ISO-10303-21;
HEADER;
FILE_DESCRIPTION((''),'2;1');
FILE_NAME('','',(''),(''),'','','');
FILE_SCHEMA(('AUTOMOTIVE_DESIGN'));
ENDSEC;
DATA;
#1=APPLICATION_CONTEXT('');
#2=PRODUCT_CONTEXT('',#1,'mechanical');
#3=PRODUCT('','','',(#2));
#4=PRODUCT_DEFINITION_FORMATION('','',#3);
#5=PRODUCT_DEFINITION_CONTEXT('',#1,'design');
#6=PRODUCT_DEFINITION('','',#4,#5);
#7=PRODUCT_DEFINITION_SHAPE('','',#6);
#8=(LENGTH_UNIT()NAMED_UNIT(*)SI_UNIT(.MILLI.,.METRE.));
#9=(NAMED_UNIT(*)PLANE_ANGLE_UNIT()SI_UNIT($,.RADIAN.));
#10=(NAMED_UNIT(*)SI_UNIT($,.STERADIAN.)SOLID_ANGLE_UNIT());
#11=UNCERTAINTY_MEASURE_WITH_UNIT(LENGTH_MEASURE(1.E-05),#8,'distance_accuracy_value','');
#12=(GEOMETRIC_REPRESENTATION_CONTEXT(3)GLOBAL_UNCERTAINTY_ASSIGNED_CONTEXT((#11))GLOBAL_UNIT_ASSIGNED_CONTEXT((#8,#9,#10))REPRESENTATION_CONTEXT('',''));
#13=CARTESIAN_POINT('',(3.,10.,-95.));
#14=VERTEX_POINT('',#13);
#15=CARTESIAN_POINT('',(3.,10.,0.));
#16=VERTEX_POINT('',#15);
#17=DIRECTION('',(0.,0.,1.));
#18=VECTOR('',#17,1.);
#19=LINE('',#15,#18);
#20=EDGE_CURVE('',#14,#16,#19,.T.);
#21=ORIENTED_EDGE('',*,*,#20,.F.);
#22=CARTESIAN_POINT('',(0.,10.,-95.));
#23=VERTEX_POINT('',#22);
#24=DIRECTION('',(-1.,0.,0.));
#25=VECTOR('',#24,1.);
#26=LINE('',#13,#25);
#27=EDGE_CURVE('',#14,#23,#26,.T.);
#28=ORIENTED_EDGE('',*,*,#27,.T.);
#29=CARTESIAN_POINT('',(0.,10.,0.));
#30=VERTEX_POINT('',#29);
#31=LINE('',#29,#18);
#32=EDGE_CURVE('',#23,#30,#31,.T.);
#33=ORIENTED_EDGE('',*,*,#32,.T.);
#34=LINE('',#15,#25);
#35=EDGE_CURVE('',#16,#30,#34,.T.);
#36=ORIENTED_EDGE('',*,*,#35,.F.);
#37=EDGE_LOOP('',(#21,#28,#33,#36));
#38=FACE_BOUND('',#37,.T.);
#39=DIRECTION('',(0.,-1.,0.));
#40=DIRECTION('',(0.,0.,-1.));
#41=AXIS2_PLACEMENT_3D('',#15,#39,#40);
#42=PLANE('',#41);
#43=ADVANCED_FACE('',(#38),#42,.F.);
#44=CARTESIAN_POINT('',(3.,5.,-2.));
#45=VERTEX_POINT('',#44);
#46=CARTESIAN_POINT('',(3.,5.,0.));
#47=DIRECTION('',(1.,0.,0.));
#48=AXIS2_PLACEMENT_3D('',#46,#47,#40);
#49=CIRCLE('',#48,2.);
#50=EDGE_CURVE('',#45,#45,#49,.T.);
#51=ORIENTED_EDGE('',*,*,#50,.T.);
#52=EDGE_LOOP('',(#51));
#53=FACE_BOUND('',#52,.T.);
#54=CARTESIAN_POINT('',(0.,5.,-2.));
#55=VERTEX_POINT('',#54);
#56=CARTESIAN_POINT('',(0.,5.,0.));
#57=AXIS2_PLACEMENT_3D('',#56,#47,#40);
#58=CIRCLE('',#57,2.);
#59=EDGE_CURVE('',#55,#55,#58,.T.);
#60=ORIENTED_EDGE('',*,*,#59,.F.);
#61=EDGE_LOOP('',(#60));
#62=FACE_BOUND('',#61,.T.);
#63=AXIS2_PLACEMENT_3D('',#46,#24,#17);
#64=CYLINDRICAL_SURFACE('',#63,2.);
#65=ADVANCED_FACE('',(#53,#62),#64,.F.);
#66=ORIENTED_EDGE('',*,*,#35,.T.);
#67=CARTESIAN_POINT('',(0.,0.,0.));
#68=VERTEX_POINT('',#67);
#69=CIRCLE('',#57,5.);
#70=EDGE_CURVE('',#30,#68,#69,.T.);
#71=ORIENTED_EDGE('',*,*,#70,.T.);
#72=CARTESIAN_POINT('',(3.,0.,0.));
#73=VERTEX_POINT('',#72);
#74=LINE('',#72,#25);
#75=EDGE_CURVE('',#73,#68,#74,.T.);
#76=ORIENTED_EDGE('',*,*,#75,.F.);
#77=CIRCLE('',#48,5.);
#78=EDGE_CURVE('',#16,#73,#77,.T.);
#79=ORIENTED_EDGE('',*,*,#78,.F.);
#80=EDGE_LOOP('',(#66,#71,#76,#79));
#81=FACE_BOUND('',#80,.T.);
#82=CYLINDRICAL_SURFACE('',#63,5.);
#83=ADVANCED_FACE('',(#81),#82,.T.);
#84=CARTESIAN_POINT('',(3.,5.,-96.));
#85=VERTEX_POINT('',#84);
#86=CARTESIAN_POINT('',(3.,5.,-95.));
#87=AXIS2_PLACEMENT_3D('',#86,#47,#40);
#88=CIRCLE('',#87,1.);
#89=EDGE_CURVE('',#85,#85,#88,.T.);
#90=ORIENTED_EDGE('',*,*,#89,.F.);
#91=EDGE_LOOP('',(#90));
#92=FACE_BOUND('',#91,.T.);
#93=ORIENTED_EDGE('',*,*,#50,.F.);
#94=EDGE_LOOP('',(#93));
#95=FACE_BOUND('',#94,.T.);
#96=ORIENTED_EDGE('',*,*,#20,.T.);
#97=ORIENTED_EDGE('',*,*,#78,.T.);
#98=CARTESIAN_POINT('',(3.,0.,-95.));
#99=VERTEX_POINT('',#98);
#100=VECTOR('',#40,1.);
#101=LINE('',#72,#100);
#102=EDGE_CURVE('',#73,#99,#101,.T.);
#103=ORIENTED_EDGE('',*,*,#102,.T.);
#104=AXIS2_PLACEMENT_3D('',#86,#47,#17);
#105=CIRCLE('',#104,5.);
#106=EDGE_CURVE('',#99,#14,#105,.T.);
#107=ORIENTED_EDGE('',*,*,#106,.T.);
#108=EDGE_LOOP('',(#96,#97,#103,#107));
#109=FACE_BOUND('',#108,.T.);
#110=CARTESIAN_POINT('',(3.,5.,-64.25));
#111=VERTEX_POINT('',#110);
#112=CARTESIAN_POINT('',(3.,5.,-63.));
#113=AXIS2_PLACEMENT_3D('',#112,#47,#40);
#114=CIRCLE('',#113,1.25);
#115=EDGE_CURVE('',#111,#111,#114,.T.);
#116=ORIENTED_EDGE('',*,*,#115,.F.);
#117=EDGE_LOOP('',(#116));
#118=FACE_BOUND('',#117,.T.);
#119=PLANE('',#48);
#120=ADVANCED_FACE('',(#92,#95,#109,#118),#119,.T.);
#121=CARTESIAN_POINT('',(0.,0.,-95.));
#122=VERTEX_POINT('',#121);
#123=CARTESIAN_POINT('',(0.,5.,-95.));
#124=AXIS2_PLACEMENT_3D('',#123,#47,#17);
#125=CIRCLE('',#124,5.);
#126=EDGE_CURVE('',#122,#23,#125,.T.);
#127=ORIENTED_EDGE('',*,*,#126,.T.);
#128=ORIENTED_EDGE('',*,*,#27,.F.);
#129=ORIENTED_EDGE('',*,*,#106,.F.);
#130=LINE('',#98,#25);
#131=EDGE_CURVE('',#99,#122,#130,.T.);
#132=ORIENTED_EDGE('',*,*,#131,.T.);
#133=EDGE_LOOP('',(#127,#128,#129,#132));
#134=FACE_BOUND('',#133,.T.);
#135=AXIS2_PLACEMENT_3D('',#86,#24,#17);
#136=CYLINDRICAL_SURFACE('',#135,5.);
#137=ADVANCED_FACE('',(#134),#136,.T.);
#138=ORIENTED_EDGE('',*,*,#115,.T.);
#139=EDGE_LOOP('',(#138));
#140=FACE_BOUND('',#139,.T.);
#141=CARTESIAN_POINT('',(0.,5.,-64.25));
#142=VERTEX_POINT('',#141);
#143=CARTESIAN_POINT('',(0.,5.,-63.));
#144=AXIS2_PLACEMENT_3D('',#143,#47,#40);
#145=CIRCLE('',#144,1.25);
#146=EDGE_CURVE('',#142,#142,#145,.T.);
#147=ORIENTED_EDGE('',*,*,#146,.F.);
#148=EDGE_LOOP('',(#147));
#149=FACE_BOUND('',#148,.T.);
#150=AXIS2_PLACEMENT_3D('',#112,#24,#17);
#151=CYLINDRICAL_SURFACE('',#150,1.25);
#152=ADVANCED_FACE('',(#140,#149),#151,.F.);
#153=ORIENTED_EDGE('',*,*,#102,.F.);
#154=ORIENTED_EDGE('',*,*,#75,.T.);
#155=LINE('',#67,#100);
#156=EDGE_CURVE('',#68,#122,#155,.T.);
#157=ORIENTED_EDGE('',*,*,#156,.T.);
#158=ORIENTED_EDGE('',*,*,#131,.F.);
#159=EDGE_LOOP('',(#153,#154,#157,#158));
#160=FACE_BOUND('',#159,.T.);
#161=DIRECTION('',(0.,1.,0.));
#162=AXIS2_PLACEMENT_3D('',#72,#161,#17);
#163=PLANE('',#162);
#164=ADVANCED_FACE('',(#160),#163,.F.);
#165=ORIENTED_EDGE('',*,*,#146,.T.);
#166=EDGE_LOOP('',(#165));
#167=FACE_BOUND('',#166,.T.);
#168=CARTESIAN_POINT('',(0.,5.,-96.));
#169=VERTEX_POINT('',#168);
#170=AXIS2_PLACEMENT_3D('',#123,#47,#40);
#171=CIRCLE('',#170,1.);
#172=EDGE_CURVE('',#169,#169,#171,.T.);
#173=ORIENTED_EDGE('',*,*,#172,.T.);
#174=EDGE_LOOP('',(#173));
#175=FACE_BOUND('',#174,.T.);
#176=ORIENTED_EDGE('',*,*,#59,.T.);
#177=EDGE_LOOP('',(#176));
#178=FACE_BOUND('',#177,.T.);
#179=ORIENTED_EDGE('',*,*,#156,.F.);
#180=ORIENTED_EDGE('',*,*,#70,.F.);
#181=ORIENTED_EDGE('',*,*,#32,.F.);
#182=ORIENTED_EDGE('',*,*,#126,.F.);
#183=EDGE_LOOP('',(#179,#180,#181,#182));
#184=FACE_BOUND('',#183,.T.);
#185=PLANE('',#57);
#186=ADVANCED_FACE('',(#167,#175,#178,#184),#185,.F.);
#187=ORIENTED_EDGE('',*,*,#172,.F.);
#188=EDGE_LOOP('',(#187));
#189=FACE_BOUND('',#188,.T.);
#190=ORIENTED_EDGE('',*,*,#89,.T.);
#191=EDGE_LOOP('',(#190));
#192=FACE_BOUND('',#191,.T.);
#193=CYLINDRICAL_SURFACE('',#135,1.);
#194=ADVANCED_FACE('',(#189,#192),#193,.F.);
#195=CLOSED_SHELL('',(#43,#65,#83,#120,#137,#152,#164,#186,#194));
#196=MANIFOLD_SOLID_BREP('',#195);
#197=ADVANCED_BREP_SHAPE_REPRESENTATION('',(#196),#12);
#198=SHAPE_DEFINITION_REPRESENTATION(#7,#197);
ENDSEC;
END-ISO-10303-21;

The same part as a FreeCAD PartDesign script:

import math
import FreeCAD as App
import Part
import Sketcher
Q = App.Units.Quantity

doc = App.newDocument("Part")
body = doc.addObject("PartDesign::Body", "Body")

# Sketch on YZ plane
sketch1 = doc.addObject("Sketcher::SketchObject", "Sketch")
body.addObject(sketch1)
sketch1.AttachmentSupport = (doc.YZ_Plane, [""])
sketch1.MapMode = "FlatFace"
sketch1.addGeometry([
    Part.LineSegment(App.Vector(0, 0, 0), App.Vector(0, -95, 0)),  # 0
    Part.ArcOfCircle(Part.Circle(App.Vector(5, -95, 0), App.Vector(0, 0, 1), 5), math.radians(180), math.radians(360)),  # 1
    Part.LineSegment(App.Vector(10, -95, 0), App.Vector(10, 0, 0)),  # 2
    Part.ArcOfCircle(Part.Circle(App.Vector(5, 0, 0), App.Vector(0, 0, 1), 5), math.radians(0), math.radians(180)),  # 3
    Part.Circle(App.Vector(5, 0, 0), App.Vector(0, 0, 1), 2),  # 4
    Part.Circle(App.Vector(5, -63, 0), App.Vector(0, 0, 1), 1.25),  # 5
    Part.Circle(App.Vector(5, -95, 0), App.Vector(0, 0, 1), 1),  # 6
], False)
sketch1.addConstraint([
    Sketcher.Constraint("Tangent", 0, 2, 1, 1),
    Sketcher.Constraint("Tangent", 1, 2, 2, 1),
    Sketcher.Constraint("Tangent", 2, 2, 3, 1),
    Sketcher.Constraint("Tangent", 3, 2, 0, 1),
    Sketcher.Constraint("Vertical", 0),
    Sketcher.Constraint("Vertical", 2),
    Sketcher.Constraint("Coincident", 3, 2, -1, 1),
    Sketcher.Constraint("Coincident", 4, 3, 3, 3),
    Sketcher.Constraint("Coincident", 6, 3, 1, 3),
    Sketcher.Constraint("Vertical", 4, 3, 5, 3),
    Sketcher.Constraint("Diameter", 4, Q("4 mm")),
    Sketcher.Constraint("Diameter", 6, Q("2 mm")),
    Sketcher.Constraint("Radius", 1, Q("5 mm")),
    Sketcher.Constraint("Diameter", 5, Q("2.5 mm")),
    Sketcher.Constraint("DistanceY", 0, 2, 0, 1, Q("95 mm")),
    Sketcher.Constraint("DistanceY", 5, 3, -1, 1, Q("63 mm")),
])
pad1 = doc.addObject("PartDesign::Pad", "Pad")
body.addObject(pad1)
pad1.Profile = sketch1
pad1.Length = 3

doc.recompute()
